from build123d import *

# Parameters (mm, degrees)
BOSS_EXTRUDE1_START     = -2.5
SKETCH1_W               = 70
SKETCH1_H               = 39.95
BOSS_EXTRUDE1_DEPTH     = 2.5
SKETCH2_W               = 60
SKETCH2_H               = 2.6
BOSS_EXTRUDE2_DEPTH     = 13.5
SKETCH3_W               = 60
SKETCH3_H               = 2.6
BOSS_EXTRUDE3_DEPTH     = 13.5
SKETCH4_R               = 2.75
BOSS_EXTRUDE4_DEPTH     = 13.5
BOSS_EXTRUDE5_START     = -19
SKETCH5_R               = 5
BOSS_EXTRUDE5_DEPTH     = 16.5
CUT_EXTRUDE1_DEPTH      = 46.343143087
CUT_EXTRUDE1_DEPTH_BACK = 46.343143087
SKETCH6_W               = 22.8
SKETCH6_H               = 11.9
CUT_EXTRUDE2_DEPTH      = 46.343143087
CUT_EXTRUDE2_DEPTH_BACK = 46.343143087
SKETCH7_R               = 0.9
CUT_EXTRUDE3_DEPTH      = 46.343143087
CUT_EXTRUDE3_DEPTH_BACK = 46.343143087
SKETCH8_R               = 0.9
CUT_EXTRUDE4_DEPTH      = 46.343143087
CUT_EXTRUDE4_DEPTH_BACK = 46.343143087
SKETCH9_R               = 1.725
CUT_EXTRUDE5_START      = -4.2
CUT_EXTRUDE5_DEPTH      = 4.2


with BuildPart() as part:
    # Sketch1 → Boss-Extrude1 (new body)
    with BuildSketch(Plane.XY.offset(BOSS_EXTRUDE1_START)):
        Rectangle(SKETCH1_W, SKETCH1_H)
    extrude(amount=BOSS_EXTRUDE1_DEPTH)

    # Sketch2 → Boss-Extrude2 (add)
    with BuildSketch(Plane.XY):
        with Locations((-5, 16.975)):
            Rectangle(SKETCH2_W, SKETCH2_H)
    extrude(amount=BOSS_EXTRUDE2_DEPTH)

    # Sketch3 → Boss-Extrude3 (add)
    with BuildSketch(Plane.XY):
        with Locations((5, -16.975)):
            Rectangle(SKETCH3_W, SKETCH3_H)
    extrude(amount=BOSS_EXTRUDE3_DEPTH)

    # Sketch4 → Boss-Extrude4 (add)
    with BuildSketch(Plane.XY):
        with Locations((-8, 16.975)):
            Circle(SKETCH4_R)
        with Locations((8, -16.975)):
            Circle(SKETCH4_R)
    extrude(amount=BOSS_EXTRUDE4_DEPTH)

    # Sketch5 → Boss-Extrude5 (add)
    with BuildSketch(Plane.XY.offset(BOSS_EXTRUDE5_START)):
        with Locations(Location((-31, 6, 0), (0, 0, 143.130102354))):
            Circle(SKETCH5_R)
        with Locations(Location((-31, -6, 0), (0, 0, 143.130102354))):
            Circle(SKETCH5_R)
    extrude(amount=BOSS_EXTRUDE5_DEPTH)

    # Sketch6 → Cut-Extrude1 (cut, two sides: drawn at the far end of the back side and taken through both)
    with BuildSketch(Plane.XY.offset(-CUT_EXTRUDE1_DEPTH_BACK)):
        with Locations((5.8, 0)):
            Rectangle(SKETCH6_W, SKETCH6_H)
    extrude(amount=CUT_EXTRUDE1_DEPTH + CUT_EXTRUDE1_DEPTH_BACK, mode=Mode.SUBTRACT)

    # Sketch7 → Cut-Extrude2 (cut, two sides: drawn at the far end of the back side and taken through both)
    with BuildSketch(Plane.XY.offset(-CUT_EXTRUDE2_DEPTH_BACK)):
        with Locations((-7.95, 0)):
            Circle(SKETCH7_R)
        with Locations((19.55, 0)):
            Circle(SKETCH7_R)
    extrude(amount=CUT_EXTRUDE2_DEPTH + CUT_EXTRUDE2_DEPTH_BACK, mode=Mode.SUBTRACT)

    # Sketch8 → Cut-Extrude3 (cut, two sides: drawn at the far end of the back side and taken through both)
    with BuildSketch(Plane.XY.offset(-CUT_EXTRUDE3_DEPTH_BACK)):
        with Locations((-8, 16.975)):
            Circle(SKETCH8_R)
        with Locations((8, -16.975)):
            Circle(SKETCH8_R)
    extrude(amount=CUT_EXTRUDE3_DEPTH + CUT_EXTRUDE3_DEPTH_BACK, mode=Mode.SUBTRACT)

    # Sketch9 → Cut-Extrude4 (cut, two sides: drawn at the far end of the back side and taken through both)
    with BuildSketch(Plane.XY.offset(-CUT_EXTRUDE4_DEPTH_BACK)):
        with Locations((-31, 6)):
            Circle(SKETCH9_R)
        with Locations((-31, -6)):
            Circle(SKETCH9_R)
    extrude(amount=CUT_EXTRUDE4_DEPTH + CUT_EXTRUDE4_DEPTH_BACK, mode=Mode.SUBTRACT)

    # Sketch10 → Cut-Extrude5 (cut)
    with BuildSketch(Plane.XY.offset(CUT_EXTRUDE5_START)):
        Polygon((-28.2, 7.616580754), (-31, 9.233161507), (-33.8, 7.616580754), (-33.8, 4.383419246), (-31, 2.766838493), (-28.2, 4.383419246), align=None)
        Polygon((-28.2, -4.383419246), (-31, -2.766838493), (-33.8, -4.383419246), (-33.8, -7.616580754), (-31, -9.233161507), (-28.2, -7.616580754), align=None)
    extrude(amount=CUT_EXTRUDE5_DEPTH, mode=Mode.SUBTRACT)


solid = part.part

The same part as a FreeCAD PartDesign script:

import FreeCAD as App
import Part
import Sketcher
Q = App.Units.Quantity


def add_polygon(sketch, points):
    """Adds a closed chain of lines whose ends are joined by coincident constraints."""
    first, n = sketch.GeometryCount, len(points)
    for a, b in zip(points, points[1:] + points[:1]):
        sketch.addGeometry(Part.LineSegment(App.Vector(*a, 0), App.Vector(*b, 0)), False)
    for i in range(n):
        sketch.addConstraint(Sketcher.Constraint("Coincident", first + i, 2, first + (i + 1) % n, 1))

doc = App.newDocument("Part")
body = doc.addObject("PartDesign::Body", "Body")

# Sketch on XY plane
sketch1 = body.newObject("Sketcher::SketchObject", "Sketch")
sketch1.AttachmentSupport = (doc.getObject("XY_Plane"), [""])
sketch1.MapMode = "FlatFace"
sketch1.AttachmentOffset = App.Placement(App.Vector(0, 0, -2.5), App.Rotation())
add_polygon(sketch1, [(-35, 20), (-35, -20), (35, -20), (35, 20)])  # lines 0-3
sketch1.addConstraint([
    Sketcher.Constraint("Vertical", 0),
    Sketcher.Constraint("Horizontal", 1),
    Sketcher.Constraint("Vertical", 2),
    Sketcher.Constraint("Horizontal", 3),
    Sketcher.Constraint("Symmetric", 0, 2, 2, 2, -1, 1),
    Sketcher.Constraint("DistanceX", 1, 1, 1, 2, 70.0),
    Sketcher.Constraint("DistanceY", 0, 2, 0, 1, 39.95),
])
pad1 = body.newObject("PartDesign::Pad", "Pad")
pad1.Profile = sketch1
pad1.Length = 2.5

# Sketch on XY plane
sketch2 = body.newObject("Sketcher::SketchObject", "Sketch001")
sketch2.AttachmentSupport = (doc.getObject("XY_Plane"), [""])
sketch2.MapMode = "FlatFace"
add_polygon(sketch2, [(-35, 18.3), (-35, 15.7), (25, 15.7), (25, 18.3)])  # lines 0-3
sketch2.addConstraint([
    Sketcher.Constraint("Vertical", 0),
    Sketcher.Constraint("Horizontal", 1),
    Sketcher.Constraint("Vertical", 2),
    Sketcher.Constraint("Horizontal", 3),
    Sketcher.Constraint("DistanceX", 1, 1, 1, 2, 60.0),
    Sketcher.Constraint("DistanceY", 0, 2, 0, 1, 2.6),
    Sketcher.Constraint("DistanceX", 0, 2, -1, 1, 35.0),
    Sketcher.Constraint("DistanceY", -1, 1, 0, 2, 15.675),
])
pad2 = body.newObject("PartDesign::Pad", "Pad001")
pad2.Profile = sketch2
pad2.Length = 13.5

# Sketch on XY plane
sketch3 = body.newObject("Sketcher::SketchObject", "Sketch002")
sketch3.AttachmentSupport = (doc.getObject("XY_Plane"), [""])
sketch3.MapMode = "FlatFace"
add_polygon(sketch3, [(-25, -15.7), (-25, -18.3), (35, -18.3), (35, -15.7)])  # lines 0-3
sketch3.addConstraint([
    Sketcher.Constraint("Vertical", 0),
    Sketcher.Constraint("Horizontal", 1),
    Sketcher.Constraint("Vertical", 2),
    Sketcher.Constraint("Horizontal", 3),
    Sketcher.Constraint("DistanceX", 1, 1, 1, 2, 60.0),
    Sketcher.Constraint("DistanceY", 0, 2, 0, 1, 2.6),
    Sketcher.Constraint("DistanceX", 0, 2, -1, 1, 25.0),
    Sketcher.Constraint("DistanceY", 0, 2, -1, 1, 18.275),
])
pad3 = body.newObject("PartDesign::Pad", "Pad002")
pad3.Profile = sketch3
pad3.Length = 13.5

# Sketch on XY plane
sketch4 = body.newObject("Sketcher::SketchObject", "Sketch003")
sketch4.AttachmentSupport = (doc.getObject("XY_Plane"), [""])
sketch4.MapMode = "FlatFace"
sketch4.addGeometry([
    Part.Circle(App.Vector(-8, 17, 0), App.Vector(0, 0, 1), 2.8),
    Part.Circle(App.Vector(8, -17, 0), App.Vector(0, 0, 1), 2.8),
], False)
sketch4.addConstraint([
    Sketcher.Constraint("Equal", 0, 1),
    Sketcher.Constraint("Symmetric", 0, 3, 1, 3, -1, 1),
    Sketcher.Constraint("Diameter", 0, 5.5),
    Sketcher.Constraint("DistanceX", 0, 3, -1, 1, 8.0),
    Sketcher.Constraint("DistanceY", 1, 3, 0, 3, 33.95),
])
pad4 = body.newObject("PartDesign::Pad", "Pad003")
pad4.Profile = sketch4
pad4.Length = 13.5

# Sketch on XY plane
sketch5 = body.newObject("Sketcher::SketchObject", "Sketch004")
sketch5.AttachmentSupport = (doc.getObject("XY_Plane"), [""])
sketch5.MapMode = "FlatFace"
sketch5.AttachmentOffset = App.Placement(App.Vector(0, 0, -19), App.Rotation())
sketch5.addGeometry([
    Part.Circle(App.Vector(-31, 6, 0), App.Vector(0, 0, 1), 5),
    Part.Circle(App.Vector(-31, -6, 0), App.Vector(0, 0, 1), 5),
], False)
sketch5.addConstraint([
    Sketcher.Constraint("Equal", 0, 1),
    Sketcher.Constraint("Symmetric", 0, 3, 1, 3, -1),
    Sketcher.Constraint("Diameter", 0, 10.0),
    Sketcher.Constraint("DistanceX", 0, 3, -1, 1, 31.0),
    Sketcher.Constraint("DistanceY", -1, 1, 0, 3, 6.0),
])
pad5 = body.newObject("PartDesign::Pad", "Pad004")
pad5.Profile = sketch5
pad5.Length = 16.5

# Sketch on XY plane
sketch6 = body.newObject("Sketcher::SketchObject", "Sketch005")
sketch6.AttachmentSupport = (doc.getObject("XY_Plane"), [""])
sketch6.MapMode = "FlatFace"
add_polygon(sketch6, [(-6, 6), (-6, -6), (17, -6), (17, 6)])  # lines 0-3
sketch6.addConstraint([
    Sketcher.Constraint("Vertical", 0),
    Sketcher.Constraint("Horizontal", 1),
    Sketcher.Constraint("Vertical", 2),
    Sketcher.Constraint("Horizontal", 3),
    Sketcher.Constraint("DistanceX", 1, 1, 1, 2, 22.8),
    Sketcher.Constraint("DistanceY", 0, 2, 0, 1, 11.9),
    Sketcher.Constraint("DistanceX", 0, 2, -1, 1, 5.6),
    Sketcher.Constraint("DistanceY", 0, 2, -1, 1, 5.95),
])
pocket1 = body.newObject("PartDesign::Pocket", "Pocket")
pocket1.Profile = sketch6
pocket1.Type = "ThroughAll"
pocket1.Midplane = True

# Sketch on XY plane
sketch7 = body.newObject("Sketcher::SketchObject", "Sketch006")
sketch7.AttachmentSupport = (doc.getObject("XY_Plane"), [""])
sketch7.MapMode = "FlatFace"
sketch7.addGeometry([
    Part.Circle(App.Vector(-8, 0, 0), App.Vector(0, 0, 1), 0.9),
    Part.Circle(App.Vector(19.6, 0, 0), App.Vector(0, 0, 1), 0.9),
], False)
sketch7.addConstraint([
    Sketcher.Constraint("Equal", 0, 1),
    Sketcher.Constraint("PointOnObject", 0, 3, -1),
    Sketcher.Constraint("PointOnObject", 1, 3, -1),
    Sketcher.Constraint("Diameter", 0, 1.8),
    Sketcher.Constraint("DistanceX", 0, 3, 1, 3, 27.5),
    Sketcher.Constraint("DistanceX", 0, 3, -1, 1, 7.95),
])
pocket2 = body.newObject("PartDesign::Pocket", "Pocket001")
pocket2.Profile = sketch7
pocket2.Type = "ThroughAll"
pocket2.Midplane = True

# Sketch on XY plane
sketch8 = body.newObject("Sketcher::SketchObject", "Sketch007")
sketch8.AttachmentSupport = (doc.getObject("XY_Plane"), [""])
sketch8.MapMode = "FlatFace"
sketch8.addGeometry([
    Part.Circle(App.Vector(-8, 17, 0), App.Vector(0, 0, 1), 0.9),
    Part.Circle(App.Vector(8, -17, 0), App.Vector(0, 0, 1), 0.9),
], False)
sketch8.addConstraint([
    Sketcher.Constraint("Equal", 0, 1),
    Sketcher.Constraint("Symmetric", 0, 3, 1, 3, -1, 1),
    Sketcher.Constraint("Diameter", 0, 1.8),
    Sketcher.Constraint("DistanceX", 0, 3, -1, 1, 8.0),
    Sketcher.Constraint("DistanceY", 1, 3, 0, 3, 33.95),
])
pocket3 = body.newObject("PartDesign::Pocket", "Pocket002")
pocket3.Profile = sketch8
pocket3.Type = "ThroughAll"
pocket3.Midplane = True

# Sketch on XY plane
sketch9 = body.newObject("Sketcher::SketchObject", "Sketch008")
sketch9.AttachmentSupport = (doc.getObject("XY_Plane"), [""])
sketch9.MapMode = "FlatFace"
sketch9.addGeometry([
    Part.Circle(App.Vector(-31, 6, 0), App.Vector(0, 0, 1), 1.7),
    Part.Circle(App.Vector(-31, -6, 0), App.Vector(0, 0, 1), 1.7),
], False)
sketch9.addConstraint([
    Sketcher.Constraint("Equal", 0, 1),
    Sketcher.Constraint("Symmetric", 0, 3, 1, 3, -1),
    Sketcher.Constraint("Diameter", 0, 3.45),
    Sketcher.Constraint("DistanceX", 0, 3, -1, 1, 31.0),
    Sketcher.Constraint("DistanceY", -1, 1, 0, 3, 6.0),
])
pocket4 = body.newObject("PartDesign::Pocket", "Pocket003")
pocket4.Profile = sketch9
pocket4.Type = "ThroughAll"
pocket4.Midplane = True

# Sketch on XY plane
sketch10 = body.newObject("Sketcher::SketchObject", "Sketch009")
sketch10.AttachmentSupport = (doc.getObject("XY_Plane"), [""])
sketch10.MapMode = "FlatFace"
sketch10.AttachmentOffset = App.Placement(App.Vector(0, 0, -4.2), App.Rotation())
add_polygon(sketch10, [(-28.2, 7.6), (-31, 9.2), (-33.8, 7.6), (-33.8, 4.4), (-31, 2.8), (-28.2, 4.4)])  # lines 0-5
add_polygon(sketch10, [(-28.2, -4.4), (-31, -2.8), (-33.8, -4.4), (-33.8, -7.6), (-31, -9.2), (-28.2, -7.6)])  # lines 6-11
sketch10.addConstraint([
    Sketcher.Constraint("Vertical", 2),
    Sketcher.Constraint("Vertical", 5),
    Sketcher.Constraint("Vertical", 8),
    Sketcher.Constraint("Vertical", 11),
    Sketcher.Constraint("Symmetric", 3, 2, 6, 2, -1),
    Sketcher.Constraint("Symmetric", 2, 2, 7, 2, -1),
    Sketcher.Constraint("Symmetric", 0, 2, 9, 2, -1),
    Sketcher.Constraint("Symmetric", 5, 2, 10, 2, -1),
    Sketcher.Constraint("Parallel", 0, 3),
    Sketcher.Constraint("Parallel", 1, 4),
    Sketcher.Constraint("Parallel", 3, 6),
    Sketcher.Constraint("Parallel", 4, 7),
    Sketcher.Constraint("Parallel", 6, 9),
    Sketcher.Constraint("Horizontal", 2, 2, 4, 2),
    Sketcher.Constraint("Horizontal", 1, 2, 5, 2),
    Sketcher.Constraint("Angle", 0, Q("150 deg")),
    Sketcher.Constraint("DistanceX", 0, 2, -1, 1, 31.0),
    Sketcher.Constraint("DistanceY", 7, 2, 1, 2, 12.0),
    Sketcher.Constraint("DistanceX", 1, 2, -1, 1, 33.8),
    Sketcher.Constraint("DistanceY", 2, 2, 2, 1, 3.233162),
])
pocket5 = body.newObject("PartDesign::Pocket", "Pocket004")
pocket5.Profile = sketch10
pocket5.Length = 4.2
pocket5.Reversed = True

doc.recompute()
